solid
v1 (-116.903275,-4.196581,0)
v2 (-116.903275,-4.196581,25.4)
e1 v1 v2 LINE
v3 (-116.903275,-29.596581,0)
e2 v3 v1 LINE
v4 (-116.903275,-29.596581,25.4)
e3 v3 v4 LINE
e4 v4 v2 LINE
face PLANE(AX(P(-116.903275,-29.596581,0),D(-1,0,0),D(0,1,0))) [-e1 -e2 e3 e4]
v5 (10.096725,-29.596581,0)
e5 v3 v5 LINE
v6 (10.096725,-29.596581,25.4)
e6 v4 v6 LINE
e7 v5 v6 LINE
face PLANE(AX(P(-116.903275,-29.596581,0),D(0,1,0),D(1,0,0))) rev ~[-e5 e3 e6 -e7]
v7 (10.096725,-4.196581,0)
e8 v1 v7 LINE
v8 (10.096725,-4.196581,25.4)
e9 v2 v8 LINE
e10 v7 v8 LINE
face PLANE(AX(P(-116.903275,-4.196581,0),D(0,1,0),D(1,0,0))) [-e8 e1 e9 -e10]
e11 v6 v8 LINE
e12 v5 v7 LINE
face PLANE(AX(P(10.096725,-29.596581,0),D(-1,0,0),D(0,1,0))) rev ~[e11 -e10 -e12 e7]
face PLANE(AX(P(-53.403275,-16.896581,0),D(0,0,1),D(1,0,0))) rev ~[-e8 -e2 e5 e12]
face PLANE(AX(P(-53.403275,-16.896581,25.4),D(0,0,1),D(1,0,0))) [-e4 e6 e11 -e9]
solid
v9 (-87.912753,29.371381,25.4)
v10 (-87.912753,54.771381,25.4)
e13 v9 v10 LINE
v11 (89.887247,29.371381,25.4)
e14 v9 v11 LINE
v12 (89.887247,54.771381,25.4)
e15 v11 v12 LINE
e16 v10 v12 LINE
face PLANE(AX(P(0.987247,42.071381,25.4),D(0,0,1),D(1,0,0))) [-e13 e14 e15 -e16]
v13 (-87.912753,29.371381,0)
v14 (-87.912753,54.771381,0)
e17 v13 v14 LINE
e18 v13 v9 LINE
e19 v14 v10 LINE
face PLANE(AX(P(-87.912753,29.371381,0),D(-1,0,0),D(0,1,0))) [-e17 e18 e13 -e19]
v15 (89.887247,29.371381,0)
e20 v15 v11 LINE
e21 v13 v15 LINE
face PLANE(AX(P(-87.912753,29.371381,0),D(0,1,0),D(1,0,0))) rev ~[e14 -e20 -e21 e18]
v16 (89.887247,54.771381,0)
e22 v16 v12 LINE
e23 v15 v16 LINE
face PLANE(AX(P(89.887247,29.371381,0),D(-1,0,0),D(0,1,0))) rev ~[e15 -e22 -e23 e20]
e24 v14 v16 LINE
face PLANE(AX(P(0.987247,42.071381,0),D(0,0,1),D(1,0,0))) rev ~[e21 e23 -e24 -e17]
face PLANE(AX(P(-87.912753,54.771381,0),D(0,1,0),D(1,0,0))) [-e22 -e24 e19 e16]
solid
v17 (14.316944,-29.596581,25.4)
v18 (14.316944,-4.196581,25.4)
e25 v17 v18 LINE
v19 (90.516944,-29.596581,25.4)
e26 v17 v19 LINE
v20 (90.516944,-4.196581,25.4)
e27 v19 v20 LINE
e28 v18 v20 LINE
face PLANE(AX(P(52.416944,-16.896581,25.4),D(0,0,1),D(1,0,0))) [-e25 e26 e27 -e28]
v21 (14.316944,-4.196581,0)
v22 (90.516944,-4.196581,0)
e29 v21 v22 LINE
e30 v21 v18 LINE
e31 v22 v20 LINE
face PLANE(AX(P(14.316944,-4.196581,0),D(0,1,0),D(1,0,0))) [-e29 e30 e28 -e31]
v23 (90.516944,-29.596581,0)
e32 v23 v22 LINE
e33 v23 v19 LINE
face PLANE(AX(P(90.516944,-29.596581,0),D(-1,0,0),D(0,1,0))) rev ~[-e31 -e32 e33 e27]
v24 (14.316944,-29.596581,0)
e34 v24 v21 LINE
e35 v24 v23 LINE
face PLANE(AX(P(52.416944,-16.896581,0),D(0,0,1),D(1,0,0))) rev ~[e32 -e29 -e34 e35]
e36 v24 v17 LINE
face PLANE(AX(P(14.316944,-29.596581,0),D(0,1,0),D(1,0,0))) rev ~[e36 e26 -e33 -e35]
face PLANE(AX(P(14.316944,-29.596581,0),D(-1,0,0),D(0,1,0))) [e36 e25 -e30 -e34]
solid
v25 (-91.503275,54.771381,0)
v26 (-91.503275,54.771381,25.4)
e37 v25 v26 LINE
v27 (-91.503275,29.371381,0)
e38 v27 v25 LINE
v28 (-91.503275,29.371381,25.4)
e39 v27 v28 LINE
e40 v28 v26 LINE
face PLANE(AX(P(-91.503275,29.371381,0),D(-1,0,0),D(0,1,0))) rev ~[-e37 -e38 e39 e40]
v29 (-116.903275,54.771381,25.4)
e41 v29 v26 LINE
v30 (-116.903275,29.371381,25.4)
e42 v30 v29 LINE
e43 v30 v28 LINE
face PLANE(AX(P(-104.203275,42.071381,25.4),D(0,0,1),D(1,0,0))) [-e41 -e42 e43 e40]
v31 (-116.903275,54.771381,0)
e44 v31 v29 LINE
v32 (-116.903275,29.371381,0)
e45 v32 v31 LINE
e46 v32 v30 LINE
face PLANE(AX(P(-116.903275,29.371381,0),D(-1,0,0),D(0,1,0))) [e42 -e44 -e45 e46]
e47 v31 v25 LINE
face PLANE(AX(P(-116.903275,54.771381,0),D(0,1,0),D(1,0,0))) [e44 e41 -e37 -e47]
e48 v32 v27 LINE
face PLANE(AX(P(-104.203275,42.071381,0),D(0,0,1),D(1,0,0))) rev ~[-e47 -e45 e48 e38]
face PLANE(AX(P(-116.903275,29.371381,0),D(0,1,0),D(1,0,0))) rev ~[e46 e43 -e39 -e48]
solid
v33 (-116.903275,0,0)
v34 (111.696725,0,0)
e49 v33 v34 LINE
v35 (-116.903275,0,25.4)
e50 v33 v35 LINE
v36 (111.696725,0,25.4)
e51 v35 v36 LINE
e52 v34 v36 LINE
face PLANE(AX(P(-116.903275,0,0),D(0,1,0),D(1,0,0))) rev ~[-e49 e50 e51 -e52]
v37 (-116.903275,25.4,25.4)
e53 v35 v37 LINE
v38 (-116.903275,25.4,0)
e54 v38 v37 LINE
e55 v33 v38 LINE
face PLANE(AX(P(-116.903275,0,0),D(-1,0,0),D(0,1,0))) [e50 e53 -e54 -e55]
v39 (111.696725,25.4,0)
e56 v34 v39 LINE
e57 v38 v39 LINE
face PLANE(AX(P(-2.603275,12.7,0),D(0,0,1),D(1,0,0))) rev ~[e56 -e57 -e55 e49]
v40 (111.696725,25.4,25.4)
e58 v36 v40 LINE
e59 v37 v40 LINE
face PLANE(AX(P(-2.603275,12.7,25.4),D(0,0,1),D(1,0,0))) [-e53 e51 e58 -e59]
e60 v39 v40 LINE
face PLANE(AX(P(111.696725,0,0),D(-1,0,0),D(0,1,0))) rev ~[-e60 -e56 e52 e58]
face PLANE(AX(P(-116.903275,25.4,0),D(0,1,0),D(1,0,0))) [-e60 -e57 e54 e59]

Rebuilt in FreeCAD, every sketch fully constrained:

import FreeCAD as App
import Part
import Sketcher
from FreeCAD import Vector
Q = App.Units.Quantity

doc = App.newDocument("Part")
params = doc.addObject("Spreadsheet::Sheet", "Params")
for row, (alias, value) in enumerate([
    ("sketch1_width", "1 in"),
    ("sketch1_width2", "9 in"),
    ("sketch1_width3", "7 in"),
    ("sketch1_width4", "5 in"),
    ("sketch1_width5", "3 in"),
    ("pad1_length", "1 in"),
], start=1):
    params.set(f"A{row}", alias)
    params.set(f"B{row}", "=" + value)
    params.setAlias(f"B{row}", alias)

body = doc.addObject("PartDesign::Body", "Body")
body.AllowCompound = True

# Sketch on XY plane
sketch1 = body.newObject("Sketcher::SketchObject", "Sketch")
sketch1.AttachmentSupport = (doc.getObject("XY_Plane"), [""])
sketch1.MapMode = "FlatFace"
sketch1.addGeometry(Part.LineSegment(Vector(-117, 55, 0), Vector(-117, 29, 0)), False)
sketch1.addGeometry(Part.LineSegment(Vector(-117, 29, 0), Vector(-92, 29, 0)), False)
sketch1.addGeometry(Part.LineSegment(Vector(-92, 29, 0), Vector(-92, 55, 0)), False)
sketch1.addGeometry(Part.LineSegment(Vector(-92, 55, 0), Vector(-117, 55, 0)), False)
sketch1.addGeometry(Part.LineSegment(Vector(-117, 25, 0), Vector(-117, 0, 0)), False)
sketch1.addGeometry(Part.LineSegment(Vector(-117, 0, 0), Vector(112, 0, 0)), False)
sketch1.addGeometry(Part.LineSegment(Vector(112, 0, 0), Vector(112, 25, 0)), False)
sketch1.addGeometry(Part.LineSegment(Vector(112, 25, 0), Vector(-117, 25, 0)), False)
sketch1.addGeometry(Part.LineSegment(Vector(-88, 55, 0), Vector(-88, 29, 0)), False)
sketch1.addGeometry(Part.LineSegment(Vector(-88, 29, 0), Vector(90, 29, 0)), False)
sketch1.addGeometry(Part.LineSegment(Vector(90, 29, 0), Vector(90, 55, 0)), False)
sketch1.addGeometry(Part.LineSegment(Vector(90, 55, 0), Vector(-88, 55, 0)), False)
sketch1.addGeometry(Part.LineSegment(Vector(-117, -4, 0), Vector(-117, -30, 0)), False)
sketch1.addGeometry(Part.LineSegment(Vector(-117, -30, 0), Vector(10, -30, 0)), False)
sketch1.addGeometry(Part.LineSegment(Vector(10, -30, 0), Vector(10, -4, 0)), False)
sketch1.addGeometry(Part.LineSegment(Vector(10, -4, 0), Vector(-117, -4, 0)), False)
sketch1.addGeometry(Part.LineSegment(Vector(14, -4, 0), Vector(14, -30, 0)), False)
sketch1.addGeometry(Part.LineSegment(Vector(14, -30, 0), Vector(91, -30, 0)), False)
sketch1.addGeometry(Part.LineSegment(Vector(91, -30, 0), Vector(91, -4, 0)), False)
sketch1.addGeometry(Part.LineSegment(Vector(91, -4, 0), Vector(14, -4, 0)), False)
sketch1.addConstraint(Sketcher.Constraint("Coincident", 0, 2, 1, 1))
sketch1.addConstraint(Sketcher.Constraint("Coincident", 1, 2, 2, 1))
sketch1.addConstraint(Sketcher.Constraint("Coincident", 2, 2, 3, 1))
sketch1.addConstraint(Sketcher.Constraint("Coincident", 3, 2, 0, 1))
sketch1.addConstraint(Sketcher.Constraint("Coincident", 4, 2, 5, 1))
sketch1.addConstraint(Sketcher.Constraint("Coincident", 5, 2, 6, 1))
sketch1.addConstraint(Sketcher.Constraint("Coincident", 6, 2, 7, 1))
sketch1.addConstraint(Sketcher.Constraint("Coincident", 7, 2, 4, 1))
sketch1.addConstraint(Sketcher.Constraint("Coincident", 8, 2, 9, 1))
sketch1.addConstraint(Sketcher.Constraint("Coincident", 9, 2, 10, 1))
sketch1.addConstraint(Sketcher.Constraint("Coincident", 10, 2, 11, 1))
sketch1.addConstraint(Sketcher.Constraint("Coincident", 11, 2, 8, 1))
sketch1.addConstraint(Sketcher.Constraint("Coincident", 12, 2, 13, 1))
sketch1.addConstraint(Sketcher.Constraint("Coincident", 13, 2, 14, 1))
sketch1.addConstraint(Sketcher.Constraint("Coincident", 14, 2, 15, 1))
sketch1.addConstraint(Sketcher.Constraint("Coincident", 15, 2, 12, 1))
sketch1.addConstraint(Sketcher.Constraint("Coincident", 16, 2, 17, 1))
sketch1.addConstraint(Sketcher.Constraint("Coincident", 17, 2, 18, 1))
sketch1.addConstraint(Sketcher.Constraint("Coincident", 18, 2, 19, 1))
sketch1.addConstraint(Sketcher.Constraint("Coincident", 19, 2, 16, 1))
sketch1.addConstraint(Sketcher.Constraint("Vertical", 0))
sketch1.addConstraint(Sketcher.Constraint("Horizontal", 1))
sketch1.addConstraint(Sketcher.Constraint("Vertical", 2))
sketch1.addConstraint(Sketcher.Constraint("Horizontal", 3))
sketch1.addConstraint(Sketcher.Constraint("Vertical", 4))
sketch1.addConstraint(Sketcher.Constraint("Horizontal", 5))
sketch1.addConstraint(Sketcher.Constraint("Vertical", 6))
sketch1.addConstraint(Sketcher.Constraint("Horizontal", 7))
sketch1.addConstraint(Sketcher.Constraint("Vertical", 8))
sketch1.addConstraint(Sketcher.Constraint("Horizontal", 9))
sketch1.addConstraint(Sketcher.Constraint("Vertical", 10))
sketch1.addConstraint(Sketcher.Constraint("Horizontal", 11))
sketch1.addConstraint(Sketcher.Constraint("Vertical", 12))
sketch1.addConstraint(Sketcher.Constraint("Horizontal", 13))
sketch1.addConstraint(Sketcher.Constraint("Vertical", 14))
sketch1.addConstraint(Sketcher.Constraint("Horizontal", 15))
sketch1.addConstraint(Sketcher.Constraint("Vertical", 16))
sketch1.addConstraint(Sketcher.Constraint("Horizontal", 17))
sketch1.addConstraint(Sketcher.Constraint("Vertical", 18))
sketch1.addConstraint(Sketcher.Constraint("Horizontal", 19))
sketch1.addConstraint(Sketcher.Constraint("PointOnObject", 4, 2, -1))
sketch1.addConstraint(Sketcher.Constraint("Horizontal", 1, 2, 8, 2))
sketch1.addConstraint(Sketcher.Constraint("Horizontal", 3, 2, 10, 2))
sketch1.addConstraint(Sketcher.Constraint("Horizontal", 13, 2, 16, 2))
sketch1.addConstraint(Sketcher.Constraint("Horizontal", 15, 2, 18, 2))
sketch1.addConstraint(Sketcher.Constraint("Vertical", 3, 2, 4, 2))
sketch1.addConstraint(Sketcher.Constraint("Vertical", 7, 2, 12, 2))
sketch1.addConstraint(Sketcher.Constraint("Equal", 3, 0))
sketch1.addConstraint(Sketcher.Constraint("Equal", 2, 4))
sketch1.addConstraint(Sketcher.Constraint("Equal", 10, 12))
sketch1.addConstraint(Sketcher.Constraint("DistanceX", 1, 1, 1, 2, Q("1 in")))
sketch1.addConstraint(Sketcher.Constraint("DistanceX", 5, 1, 5, 2, Q("9 in")))
sketch1.addConstraint(Sketcher.Constraint("DistanceX", 9, 1, 9, 2, Q("7 in")))
sketch1.addConstraint(Sketcher.Constraint("DistanceX", 13, 1, 13, 2, Q("5 in")))
sketch1.addConstraint(Sketcher.Constraint("DistanceX", 17, 1, 17, 2, Q("3 in")))
sketch1.addConstraint(Sketcher.Constraint("DistanceY", -1, 1, 0, 2, Q("29.371381 mm")))
sketch1.addConstraint(Sketcher.Constraint("DistanceY", 12, 2, -1, 1, Q("29.596581 mm")))
sketch1.addConstraint(Sketcher.Constraint("DistanceX", 0, 2, 8, 2, Q("28.990522 mm")))
sketch1.addConstraint(Sketcher.Constraint("DistanceX", 13, 2, 16, 2, Q("4.220219 mm")))
sketch1.addConstraint(Sketcher.Constraint("DistanceX", 0, 2, -1, 1, Q("116.903275 mm")))
sketch1.setExpression("Constraints[50]", "Params.sketch1_width")
sketch1.setExpression("Constraints[51]", "Params.sketch1_width2")
sketch1.setExpression("Constraints[52]", "Params.sketch1_width3")
sketch1.setExpression("Constraints[53]", "Params.sketch1_width4")
sketch1.setExpression("Constraints[54]", "Params.sketch1_width5")
pad1 = body.newObject("PartDesign::Pad", "Pad")
pad1.Profile = sketch1
pad1.setExpression("Length", "Params.pad1_length")

doc.recompute()
